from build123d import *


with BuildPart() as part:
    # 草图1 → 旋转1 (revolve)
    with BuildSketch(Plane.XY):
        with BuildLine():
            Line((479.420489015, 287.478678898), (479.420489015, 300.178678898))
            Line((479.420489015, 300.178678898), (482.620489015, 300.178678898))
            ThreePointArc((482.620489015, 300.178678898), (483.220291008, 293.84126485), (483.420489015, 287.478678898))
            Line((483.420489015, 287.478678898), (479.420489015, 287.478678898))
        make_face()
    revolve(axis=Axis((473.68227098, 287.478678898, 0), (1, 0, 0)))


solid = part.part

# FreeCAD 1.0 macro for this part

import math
import FreeCAD as App
import Part
import Sketcher

doc = App.newDocument("Part")
body = doc.addObject("PartDesign::Body", "Body")

sketch1 = body.newObject("Sketcher::SketchObject", "Sketch")
sketch1.AttachmentSupport = (doc.getObject("XY_Plane"), [""])
sketch1.MapMode = "FlatFace"
sketch1.addGeometry([
    Part.LineSegment(App.Vector(479.4, 300.2, 0), App.Vector(479.4, 287.5, 0)),
    Part.LineSegment(App.Vector(479.4, 287.5, 0), App.Vector(483.4, 287.5, 0)),
    Part.ArcOfCircle(Part.Circle(App.Vector(382.2, 287.5, 0), App.Vector(0, 0, 1), 101.2), math.radians(0), math.radians(7.21)),
    Part.LineSegment(App.Vector(482.6, 300.2, 0), App.Vector(479.4, 300.2, 0)),
], False)
sketch1.addGeometry(Part.LineSegment(App.Vector(382.2, 287.5, 0), App.Vector(483.4, 287.5, 0)), True)
sketch1.addConstraint([
    Sketcher.Constraint("Coincident", 0, 2, 1, 1),
    Sketcher.Constraint("Coincident", 1, 2, 2, 1),
    Sketcher.Constraint("Coincident", 2, 2, 3, 1),
    Sketcher.Constraint("Coincident", 3, 2, 0, 1),
    Sketcher.Constraint("Vertical", 0),
    Sketcher.Constraint("Horizontal", 1),
    Sketcher.Constraint("Horizontal", 3),
    Sketcher.Constraint("Horizontal", 4),
    Sketcher.Constraint("Coincident", 4, 1, 2, 3),
    Sketcher.Constraint("Coincident", 4, 2, 1, 2),
    Sketcher.Constraint("DistanceX", 1, 1, 1, 2, 4.0),
    Sketcher.Constraint("DistanceX", 3, 2, 3, 1, 3.2),
    Sketcher.Constraint("DistanceY", 0, 2, 0, 1, 12.7),
    Sketcher.Constraint("DistanceX", -1, 1, 2, 3, 382.214239),
    Sketcher.Constraint("DistanceY", -1, 1, 2, 3, 287.478679),
])
revolution = body.newObject("PartDesign::Revolution", "Revolution")
revolution.Profile = sketch1
revolution.ReferenceAxis = (sketch1, ["Axis0"])
revolution.Angle = 360

doc.recompute()
